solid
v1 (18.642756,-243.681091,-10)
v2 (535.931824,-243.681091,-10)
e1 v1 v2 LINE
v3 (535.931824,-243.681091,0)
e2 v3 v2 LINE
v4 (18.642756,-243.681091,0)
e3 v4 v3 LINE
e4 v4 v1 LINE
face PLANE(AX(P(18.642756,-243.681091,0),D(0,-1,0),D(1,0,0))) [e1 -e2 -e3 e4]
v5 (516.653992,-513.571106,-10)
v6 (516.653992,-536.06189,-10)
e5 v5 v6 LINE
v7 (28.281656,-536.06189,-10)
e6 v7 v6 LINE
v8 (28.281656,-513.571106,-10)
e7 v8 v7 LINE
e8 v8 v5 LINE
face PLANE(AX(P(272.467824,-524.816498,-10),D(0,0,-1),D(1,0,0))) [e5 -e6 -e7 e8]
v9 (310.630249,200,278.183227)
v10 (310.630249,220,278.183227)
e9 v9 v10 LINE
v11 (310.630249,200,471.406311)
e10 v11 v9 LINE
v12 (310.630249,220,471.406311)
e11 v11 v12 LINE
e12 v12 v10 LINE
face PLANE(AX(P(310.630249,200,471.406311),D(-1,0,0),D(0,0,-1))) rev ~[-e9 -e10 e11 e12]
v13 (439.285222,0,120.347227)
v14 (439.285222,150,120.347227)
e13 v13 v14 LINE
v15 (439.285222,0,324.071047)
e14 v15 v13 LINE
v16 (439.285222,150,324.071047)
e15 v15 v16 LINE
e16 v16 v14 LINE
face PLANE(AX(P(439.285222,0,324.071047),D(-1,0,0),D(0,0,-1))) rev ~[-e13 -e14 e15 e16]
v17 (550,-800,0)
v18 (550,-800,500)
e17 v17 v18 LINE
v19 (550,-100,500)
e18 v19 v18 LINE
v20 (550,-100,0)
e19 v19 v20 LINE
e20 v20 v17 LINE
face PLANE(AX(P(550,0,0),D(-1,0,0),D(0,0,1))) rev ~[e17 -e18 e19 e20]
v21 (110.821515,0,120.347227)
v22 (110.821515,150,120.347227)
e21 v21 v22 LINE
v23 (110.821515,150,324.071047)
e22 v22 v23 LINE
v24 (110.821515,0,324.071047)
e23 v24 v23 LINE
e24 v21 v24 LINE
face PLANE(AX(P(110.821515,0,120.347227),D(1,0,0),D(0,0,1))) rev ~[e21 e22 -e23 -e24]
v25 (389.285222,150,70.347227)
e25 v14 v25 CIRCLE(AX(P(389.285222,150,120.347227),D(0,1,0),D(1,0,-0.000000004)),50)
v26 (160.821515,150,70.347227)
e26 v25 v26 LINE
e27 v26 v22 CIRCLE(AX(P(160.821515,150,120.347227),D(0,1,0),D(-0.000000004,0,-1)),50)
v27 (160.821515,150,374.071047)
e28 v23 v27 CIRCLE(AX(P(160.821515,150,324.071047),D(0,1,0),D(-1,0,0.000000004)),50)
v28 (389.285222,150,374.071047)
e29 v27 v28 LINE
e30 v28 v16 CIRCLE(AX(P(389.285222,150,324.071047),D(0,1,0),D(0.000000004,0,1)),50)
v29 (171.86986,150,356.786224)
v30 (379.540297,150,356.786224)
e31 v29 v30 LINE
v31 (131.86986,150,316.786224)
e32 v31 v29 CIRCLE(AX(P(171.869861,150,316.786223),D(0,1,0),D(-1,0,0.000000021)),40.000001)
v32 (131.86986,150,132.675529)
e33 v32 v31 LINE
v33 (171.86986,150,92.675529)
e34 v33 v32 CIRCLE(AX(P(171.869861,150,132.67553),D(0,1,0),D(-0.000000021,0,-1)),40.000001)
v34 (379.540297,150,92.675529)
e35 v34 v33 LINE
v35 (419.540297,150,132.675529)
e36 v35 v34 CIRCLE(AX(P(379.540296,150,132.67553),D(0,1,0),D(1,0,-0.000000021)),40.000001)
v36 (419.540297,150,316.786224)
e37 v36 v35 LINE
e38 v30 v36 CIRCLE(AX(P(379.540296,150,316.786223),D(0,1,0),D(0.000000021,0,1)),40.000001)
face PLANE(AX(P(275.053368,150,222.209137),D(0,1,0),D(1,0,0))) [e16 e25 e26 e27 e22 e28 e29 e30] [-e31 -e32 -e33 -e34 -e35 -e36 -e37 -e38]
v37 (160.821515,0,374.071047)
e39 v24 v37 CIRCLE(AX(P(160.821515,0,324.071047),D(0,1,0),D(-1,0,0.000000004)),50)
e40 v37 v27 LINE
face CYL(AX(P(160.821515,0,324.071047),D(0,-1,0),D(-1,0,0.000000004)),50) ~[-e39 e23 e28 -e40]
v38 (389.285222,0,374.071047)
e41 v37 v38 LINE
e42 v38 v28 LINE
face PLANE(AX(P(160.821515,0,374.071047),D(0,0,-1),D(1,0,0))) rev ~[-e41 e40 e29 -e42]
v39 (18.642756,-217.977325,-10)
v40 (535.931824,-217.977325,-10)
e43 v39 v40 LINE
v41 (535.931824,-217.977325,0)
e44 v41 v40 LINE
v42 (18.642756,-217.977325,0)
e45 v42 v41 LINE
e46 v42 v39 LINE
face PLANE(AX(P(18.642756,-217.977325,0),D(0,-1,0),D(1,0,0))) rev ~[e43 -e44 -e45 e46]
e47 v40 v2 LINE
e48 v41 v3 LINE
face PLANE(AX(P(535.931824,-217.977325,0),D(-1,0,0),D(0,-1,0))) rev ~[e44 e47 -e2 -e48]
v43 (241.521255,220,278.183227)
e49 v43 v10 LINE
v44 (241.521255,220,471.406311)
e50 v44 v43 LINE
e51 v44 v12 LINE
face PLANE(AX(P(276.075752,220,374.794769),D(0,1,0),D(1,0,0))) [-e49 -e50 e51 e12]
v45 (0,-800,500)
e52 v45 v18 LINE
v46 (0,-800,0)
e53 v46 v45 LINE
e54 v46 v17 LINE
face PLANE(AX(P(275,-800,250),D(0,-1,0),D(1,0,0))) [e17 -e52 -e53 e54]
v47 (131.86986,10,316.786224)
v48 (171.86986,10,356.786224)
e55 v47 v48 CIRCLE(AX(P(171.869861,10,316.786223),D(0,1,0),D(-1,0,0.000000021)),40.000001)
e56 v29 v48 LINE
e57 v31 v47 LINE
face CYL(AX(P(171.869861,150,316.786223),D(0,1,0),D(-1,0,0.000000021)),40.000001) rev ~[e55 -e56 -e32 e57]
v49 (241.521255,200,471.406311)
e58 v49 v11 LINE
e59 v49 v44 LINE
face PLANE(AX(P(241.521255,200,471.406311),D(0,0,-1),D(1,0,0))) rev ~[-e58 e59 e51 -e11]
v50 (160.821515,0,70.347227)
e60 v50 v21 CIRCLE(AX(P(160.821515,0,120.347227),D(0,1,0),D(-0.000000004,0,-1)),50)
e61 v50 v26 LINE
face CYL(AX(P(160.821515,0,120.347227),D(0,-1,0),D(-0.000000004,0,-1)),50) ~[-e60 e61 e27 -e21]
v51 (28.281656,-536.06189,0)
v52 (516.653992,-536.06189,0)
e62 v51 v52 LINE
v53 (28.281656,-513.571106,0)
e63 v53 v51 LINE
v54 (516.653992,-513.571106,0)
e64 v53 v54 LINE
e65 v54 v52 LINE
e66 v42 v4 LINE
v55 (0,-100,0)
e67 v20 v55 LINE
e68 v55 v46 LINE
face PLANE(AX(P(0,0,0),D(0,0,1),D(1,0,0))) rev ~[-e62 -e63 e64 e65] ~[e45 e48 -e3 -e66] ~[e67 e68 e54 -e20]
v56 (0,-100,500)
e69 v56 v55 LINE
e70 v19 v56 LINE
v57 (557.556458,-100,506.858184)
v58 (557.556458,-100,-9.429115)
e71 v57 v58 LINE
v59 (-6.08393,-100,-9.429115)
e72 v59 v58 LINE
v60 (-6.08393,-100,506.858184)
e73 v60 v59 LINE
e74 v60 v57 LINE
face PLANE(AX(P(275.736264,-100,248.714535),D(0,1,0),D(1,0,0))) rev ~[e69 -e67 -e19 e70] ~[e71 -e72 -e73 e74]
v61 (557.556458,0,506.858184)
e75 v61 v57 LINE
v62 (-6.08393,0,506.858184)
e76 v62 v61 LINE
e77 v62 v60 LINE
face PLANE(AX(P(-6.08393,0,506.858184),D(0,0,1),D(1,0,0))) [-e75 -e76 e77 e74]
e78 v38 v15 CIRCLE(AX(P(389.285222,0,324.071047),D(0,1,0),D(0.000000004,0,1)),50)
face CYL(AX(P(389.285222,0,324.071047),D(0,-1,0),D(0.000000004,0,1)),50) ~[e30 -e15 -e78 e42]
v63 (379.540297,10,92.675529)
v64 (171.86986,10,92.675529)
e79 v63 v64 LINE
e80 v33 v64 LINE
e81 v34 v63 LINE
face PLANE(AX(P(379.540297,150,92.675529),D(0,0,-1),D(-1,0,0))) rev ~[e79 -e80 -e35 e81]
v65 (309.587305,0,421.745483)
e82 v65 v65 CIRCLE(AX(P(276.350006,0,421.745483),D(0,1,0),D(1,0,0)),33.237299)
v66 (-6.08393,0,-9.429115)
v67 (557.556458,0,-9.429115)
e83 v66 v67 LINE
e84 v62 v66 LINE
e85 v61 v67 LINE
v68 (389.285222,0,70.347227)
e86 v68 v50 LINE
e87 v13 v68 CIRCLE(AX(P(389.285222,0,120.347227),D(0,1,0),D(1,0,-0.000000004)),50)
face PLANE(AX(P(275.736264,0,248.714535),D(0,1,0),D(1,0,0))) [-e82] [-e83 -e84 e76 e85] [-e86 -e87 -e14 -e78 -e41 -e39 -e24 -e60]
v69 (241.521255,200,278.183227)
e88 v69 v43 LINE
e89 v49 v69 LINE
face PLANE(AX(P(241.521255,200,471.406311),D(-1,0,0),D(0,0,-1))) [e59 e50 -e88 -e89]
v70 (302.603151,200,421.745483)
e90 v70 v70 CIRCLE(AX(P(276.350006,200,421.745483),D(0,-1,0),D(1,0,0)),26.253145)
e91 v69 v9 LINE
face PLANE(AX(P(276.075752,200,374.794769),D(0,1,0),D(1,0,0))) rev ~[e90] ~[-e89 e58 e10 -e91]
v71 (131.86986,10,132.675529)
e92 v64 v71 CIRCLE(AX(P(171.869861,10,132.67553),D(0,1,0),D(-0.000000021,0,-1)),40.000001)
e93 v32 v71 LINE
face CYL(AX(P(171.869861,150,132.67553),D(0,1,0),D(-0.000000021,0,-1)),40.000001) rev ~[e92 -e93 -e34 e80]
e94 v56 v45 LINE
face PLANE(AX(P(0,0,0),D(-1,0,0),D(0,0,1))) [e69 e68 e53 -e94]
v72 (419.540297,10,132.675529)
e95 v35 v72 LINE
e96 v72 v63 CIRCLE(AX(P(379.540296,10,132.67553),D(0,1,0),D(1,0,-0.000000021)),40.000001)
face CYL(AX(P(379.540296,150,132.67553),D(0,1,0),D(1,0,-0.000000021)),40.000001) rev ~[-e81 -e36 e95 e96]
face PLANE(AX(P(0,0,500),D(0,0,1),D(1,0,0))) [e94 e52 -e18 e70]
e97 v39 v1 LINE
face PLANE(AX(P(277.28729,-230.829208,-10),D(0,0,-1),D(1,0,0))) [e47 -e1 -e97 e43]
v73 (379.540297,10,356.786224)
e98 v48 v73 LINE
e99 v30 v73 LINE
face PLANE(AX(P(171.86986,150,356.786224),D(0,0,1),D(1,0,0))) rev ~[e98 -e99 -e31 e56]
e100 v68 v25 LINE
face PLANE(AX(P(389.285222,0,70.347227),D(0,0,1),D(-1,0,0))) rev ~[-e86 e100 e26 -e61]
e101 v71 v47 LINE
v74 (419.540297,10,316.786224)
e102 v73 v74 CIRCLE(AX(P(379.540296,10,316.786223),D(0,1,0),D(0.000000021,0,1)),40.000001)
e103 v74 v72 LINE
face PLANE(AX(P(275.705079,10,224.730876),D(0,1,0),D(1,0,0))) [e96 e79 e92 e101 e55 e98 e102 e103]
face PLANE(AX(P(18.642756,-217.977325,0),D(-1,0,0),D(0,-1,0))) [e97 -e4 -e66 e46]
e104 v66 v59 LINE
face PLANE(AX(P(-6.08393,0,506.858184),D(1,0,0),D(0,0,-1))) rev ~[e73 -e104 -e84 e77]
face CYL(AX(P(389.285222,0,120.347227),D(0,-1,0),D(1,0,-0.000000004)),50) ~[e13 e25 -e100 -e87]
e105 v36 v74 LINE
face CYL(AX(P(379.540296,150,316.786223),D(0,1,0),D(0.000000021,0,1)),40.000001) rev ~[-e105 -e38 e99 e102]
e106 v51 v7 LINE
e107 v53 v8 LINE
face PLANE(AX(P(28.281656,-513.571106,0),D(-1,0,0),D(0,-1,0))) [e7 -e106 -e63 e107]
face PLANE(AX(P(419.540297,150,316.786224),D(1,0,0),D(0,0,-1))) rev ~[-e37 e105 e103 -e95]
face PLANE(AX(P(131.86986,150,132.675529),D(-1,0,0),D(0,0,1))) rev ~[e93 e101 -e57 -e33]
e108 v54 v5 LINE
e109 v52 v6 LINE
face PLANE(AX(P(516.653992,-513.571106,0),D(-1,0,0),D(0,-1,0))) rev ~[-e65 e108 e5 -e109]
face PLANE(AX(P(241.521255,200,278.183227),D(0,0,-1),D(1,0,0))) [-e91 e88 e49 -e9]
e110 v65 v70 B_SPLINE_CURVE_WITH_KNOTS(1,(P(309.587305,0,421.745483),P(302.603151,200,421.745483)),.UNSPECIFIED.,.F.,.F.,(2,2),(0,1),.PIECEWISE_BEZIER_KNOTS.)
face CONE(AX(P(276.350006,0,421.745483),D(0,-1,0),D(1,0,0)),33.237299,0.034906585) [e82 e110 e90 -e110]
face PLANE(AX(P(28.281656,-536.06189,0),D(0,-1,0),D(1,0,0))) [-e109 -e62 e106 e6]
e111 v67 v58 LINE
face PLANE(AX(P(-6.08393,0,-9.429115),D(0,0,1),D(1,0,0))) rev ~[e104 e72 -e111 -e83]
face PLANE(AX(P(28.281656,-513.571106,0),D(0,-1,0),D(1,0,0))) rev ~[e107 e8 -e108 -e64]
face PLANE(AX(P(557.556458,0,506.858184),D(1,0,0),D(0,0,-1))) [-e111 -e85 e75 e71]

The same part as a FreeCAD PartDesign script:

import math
import FreeCAD as App
import Part
import Sketcher

doc = App.newDocument("Part")
body = doc.addObject("PartDesign::Body", "Body")

# Sketch on XZ plane
sketch1 = body.newObject("Sketcher::SketchObject", "Sketch")
sketch1.AttachmentSupport = (doc.getObject("XZ_Plane"), [""])
sketch1.MapMode = "FlatFace"
sketch1.addGeometry([
    Part.LineSegment(App.Vector(0, 500, 0), App.Vector(0, 0, 0)),
    Part.LineSegment(App.Vector(0, 0, 0), App.Vector(550, 0, 0)),
    Part.LineSegment(App.Vector(550, 0, 0), App.Vector(550, 500, 0)),
    Part.LineSegment(App.Vector(550, 500, 0), App.Vector(0, 500, 0)),
], False)
sketch1.addConstraint([
    Sketcher.Constraint("Coincident", 0, 2, 1, 1),
    Sketcher.Constraint("Coincident", 1, 2, 2, 1),
    Sketcher.Constraint("Coincident", 2, 2, 3, 1),
    Sketcher.Constraint("Coincident", 3, 2, 0, 1),
    Sketcher.Constraint("Vertical", 0),
    Sketcher.Constraint("Horizontal", 1),
    Sketcher.Constraint("Vertical", 2),
    Sketcher.Constraint("Horizontal", 3),
    Sketcher.Constraint("Coincident", 0, 2, -1, 1),
    Sketcher.Constraint("DistanceX", 1, 1, 1, 2, 550.0),
    Sketcher.Constraint("DistanceY", 0, 2, 0, 1, 500.0),
])
pad1 = body.newObject("PartDesign::Pad", "Pad")
pad1.Profile = sketch1
pad1.Length = 800

# Sketch on XZ plane
sketch2 = body.newObject("Sketcher::SketchObject", "Sketch001")
sketch2.AttachmentSupport = (doc.getObject("XZ_Plane"), [""])
sketch2.MapMode = "FlatFace"
sketch2.addGeometry([
    Part.LineSegment(App.Vector(111, 120, 0), App.Vector(111, 324, 0)),  # 0
    Part.ArcOfCircle(Part.Circle(App.Vector(161, 324, 0), App.Vector(0, 0, 1), 50), math.radians(90), math.radians(180)),  # 1
    Part.LineSegment(App.Vector(161, 374, 0), App.Vector(389, 374, 0)),  # 2
    Part.ArcOfCircle(Part.Circle(App.Vector(389, 324, 0), App.Vector(0, 0, 1), 50), math.radians(0), math.radians(90)),  # 3
    Part.LineSegment(App.Vector(439, 324, 0), App.Vector(439, 120, 0)),  # 4
    Part.ArcOfCircle(Part.Circle(App.Vector(389, 120, 0), App.Vector(0, 0, 1), 50), math.radians(-90), math.radians(0)),  # 5
    Part.LineSegment(App.Vector(389, 70, 0), App.Vector(161, 70, 0)),  # 6
    Part.ArcOfCircle(Part.Circle(App.Vector(161, 120, 0), App.Vector(0, 0, 1), 50), math.radians(-180), math.radians(-90)),  # 7
], False)
sketch2.addConstraint([
    Sketcher.Constraint("Tangent", 0, 2, 1, 2),
    Sketcher.Constraint("Tangent", 1, 1, 2, 1),
    Sketcher.Constraint("Tangent", 2, 2, 3, 2),
    Sketcher.Constraint("Tangent", 3, 1, 4, 1),
    Sketcher.Constraint("Tangent", 4, 2, 5, 2),
    Sketcher.Constraint("Tangent", 5, 1, 6, 1),
    Sketcher.Constraint("Tangent", 6, 2, 7, 2),
    Sketcher.Constraint("Tangent", 7, 1, 0, 1),
    Sketcher.Constraint("Vertical", 0),
    Sketcher.Constraint("Horizontal", 2),
    Sketcher.Constraint("Vertical", 4),
    Sketcher.Constraint("Horizontal", 6),
    Sketcher.Constraint("Equal", 1, 3),
    Sketcher.Constraint("Equal", 3, 5),
    Sketcher.Constraint("Equal", 5, 7),
    Sketcher.Constraint("Radius", 1, 50.0),
    Sketcher.Constraint("DistanceY", 0, 1, 0, 2, 203.72382),
    Sketcher.Constraint("DistanceX", 2, 1, 2, 2, 228.463707),
    Sketcher.Constraint("DistanceX", -1, 1, 3, 3, 389.285222),
    Sketcher.Constraint("DistanceY", -1, 1, 1, 3, 324.071047),
])
pad2 = body.newObject("PartDesign::Pad", "Pad001")
pad2.Profile = sketch2
pad2.Length = 150
pad2.Reversed = True

# Sketch on XZ plane
sketch3 = body.newObject("Sketcher::SketchObject", "Sketch002")
sketch3.AttachmentSupport = (doc.getObject("XZ_Plane"), [""])
sketch3.MapMode = "FlatFace"
sketch3.AttachmentOffset = App.Placement(App.Vector(0, 0, -150), App.Rotation())
sketch3.addGeometry([
    Part.LineSegment(App.Vector(132, 133, 0), App.Vector(132, 317, 0)),  # 0
    Part.ArcOfCircle(Part.Circle(App.Vector(172, 317, 0), App.Vector(0, 0, 1), 40), math.radians(90), math.radians(180)),  # 1
    Part.LineSegment(App.Vector(172, 357, 0), App.Vector(380, 357, 0)),  # 2
    Part.ArcOfCircle(Part.Circle(App.Vector(380, 317, 0), App.Vector(0, 0, 1), 40), math.radians(0), math.radians(90)),  # 3
    Part.LineSegment(App.Vector(420, 317, 0), App.Vector(420, 133, 0)),  # 4
    Part.ArcOfCircle(Part.Circle(App.Vector(380, 133, 0), App.Vector(0, 0, 1), 40), math.radians(-90), math.radians(0)),  # 5
    Part.LineSegment(App.Vector(380, 93, 0), App.Vector(172, 93, 0)),  # 6
    Part.ArcOfCircle(Part.Circle(App.Vector(172, 133, 0), App.Vector(0, 0, 1), 40), math.radians(-180), math.radians(-90)),  # 7
], False)
sketch3.addConstraint([
    Sketcher.Constraint("Tangent", 0, 2, 1, 2),
    Sketcher.Constraint("Tangent", 1, 1, 2, 1),
    Sketcher.Constraint("Tangent", 2, 2, 3, 2),
    Sketcher.Constraint("Tangent", 3, 1, 4, 1),
    Sketcher.Constraint("Tangent", 4, 2, 5, 2),
    Sketcher.Constraint("Tangent", 5, 1, 6, 1),
    Sketcher.Constraint("Tangent", 6, 2, 7, 2),
    Sketcher.Constraint("Tangent", 7, 1, 0, 1),
    Sketcher.Constraint("Vertical", 0),
    Sketcher.Constraint("Horizontal", 2),
    Sketcher.Constraint("Vertical", 4),
    Sketcher.Constraint("Horizontal", 6),
    Sketcher.Constraint("Equal", 1, 3),
    Sketcher.Constraint("Equal", 3, 5),
    Sketcher.Constraint("Equal", 5, 7),
    Sketcher.Constraint("Radius", 1, 40.000001),
    Sketcher.Constraint("DistanceX", 2, 1, 2, 2, 207.670437),
    Sketcher.Constraint("DistanceY", 0, 1, 0, 2, 184.110695),
    Sketcher.Constraint("DistanceX", -1, 1, 1, 3, 171.869861),
    Sketcher.Constraint("DistanceY", -1, 1, 5, 3, 132.67553),
])
pocket1 = body.newObject("PartDesign::Pocket", "Pocket")
pocket1.Profile = sketch3
pocket1.Length = 140
pocket1.Reversed = True

# Sketch on XZ plane
sketch4 = body.newObject("Sketcher::SketchObject", "Sketch003")
sketch4.AttachmentSupport = (doc.getObject("XZ_Plane"), [""])
sketch4.MapMode = "FlatFace"
sketch4.addGeometry(Part.Circle(App.Vector(276, 422, 0), App.Vector(0, 0, 1), 33), False)
sketch4.addConstraint([
    Sketcher.Constraint("Diameter", 0, 66.474598),
    Sketcher.Constraint("DistanceX", -1, 1, 0, 3, 276.350006),
    Sketcher.Constraint("DistanceY", -1, 1, 0, 3, 421.745483),
])
pad3 = body.newObject("PartDesign::Pad", "Pad002")
pad3.Profile = sketch4
pad3.Length = 200
pad3.Reversed = True
pad3.TaperAngle = -2

# Sketch on XZ plane
sketch5 = body.newObject("Sketcher::SketchObject", "Sketch004")
sketch5.AttachmentSupport = (doc.getObject("XZ_Plane"), [""])
sketch5.MapMode = "FlatFace"
sketch5.AttachmentOffset = App.Placement(App.Vector(0, 0, -200), App.Rotation())
sketch5.addGeometry([
    Part.LineSegment(App.Vector(242, 278, 0), App.Vector(242, 471, 0)),
    Part.LineSegment(App.Vector(242, 471, 0), App.Vector(311, 471, 0)),
    Part.LineSegment(App.Vector(311, 471, 0), App.Vector(311, 278, 0)),
    Part.LineSegment(App.Vector(311, 278, 0), App.Vector(242, 278, 0)),
], False)
sketch5.addConstraint([
    Sketcher.Constraint("Coincident", 0, 2, 1, 1),
    Sketcher.Constraint("Coincident", 1, 2, 2, 1),
    Sketcher.Constraint("Coincident", 2, 2, 3, 1),
    Sketcher.Constraint("Coincident", 3, 2, 0, 1),
    Sketcher.Constraint("Vertical", 0),
    Sketcher.Constraint("Horizontal", 1),
    Sketcher.Constraint("Vertical", 2),
    Sketcher.Constraint("Horizontal", 3),
    Sketcher.Constraint("DistanceX", 1, 1, 1, 2, 69.108994),
    Sketcher.Constraint("DistanceY", 0, 1, 0, 2, 193.223083),
    Sketcher.Constraint("DistanceY", -1, 1, 0, 2, 471.406311),
    Sketcher.Constraint("DistanceX", -1, 1, 1, 2, 310.630249),
])
pad4 = body.newObject("PartDesign::Pad", "Pad003")
pad4.Profile = sketch5
pad4.Length = 20
pad4.Reversed = True

# Sketch on XY plane
sketch6 = body.newObject("Sketcher::SketchObject", "Sketch005")
sketch6.AttachmentSupport = (doc.getObject("XY_Plane"), [""])
sketch6.MapMode = "FlatFace"
sketch6.addGeometry([
    Part.LineSegment(App.Vector(19, -244, 0), App.Vector(19, -218, 0)),  # 0
    Part.LineSegment(App.Vector(19, -218, 0), App.Vector(536, -218, 0)),  # 1
    Part.LineSegment(App.Vector(536, -218, 0), App.Vector(536, -244, 0)),  # 2
    Part.LineSegment(App.Vector(536, -244, 0), App.Vector(19, -244, 0)),  # 3
    Part.LineSegment(App.Vector(28, -536, 0), App.Vector(28, -514, 0)),  # 4
    Part.LineSegment(App.Vector(28, -514, 0), App.Vector(517, -514, 0)),  # 5
    Part.LineSegment(App.Vector(517, -514, 0), App.Vector(517, -536, 0)),  # 6
    Part.LineSegment(App.Vector(517, -536, 0), App.Vector(28, -536, 0)),  # 7
], False)
sketch6.addConstraint([
    Sketcher.Constraint("Coincident", 0, 2, 1, 1),
    Sketcher.Constraint("Coincident", 1, 2, 2, 1),
    Sketcher.Constraint("Coincident", 2, 2, 3, 1),
    Sketcher.Constraint("Coincident", 3, 2, 0, 1),
    Sketcher.Constraint("Coincident", 4, 2, 5, 1),
    Sketcher.Constraint("Coincident", 5, 2, 6, 1),
    Sketcher.Constraint("Coincident", 6, 2, 7, 1),
    Sketcher.Constraint("Coincident", 7, 2, 4, 1),
    Sketcher.Constraint("Vertical", 0),
    Sketcher.Constraint("Horizontal", 1),
    Sketcher.Constraint("Vertical", 2),
    Sketcher.Constraint("Horizontal", 3),
    Sketcher.Constraint("Vertical", 4),
    Sketcher.Constraint("Horizontal", 5),
    Sketcher.Constraint("Vertical", 6),
    Sketcher.Constraint("Horizontal", 7),
    Sketcher.Constraint("DistanceX", 1, 1, 1, 2, 517.289068),
    Sketcher.Constraint("DistanceX", 3, 2, 4, 2, 9.6389),
    Sketcher.Constraint("DistanceY", 6, 2, 2, 2, 292.380799),
    Sketcher.Constraint("DistanceX", 5, 1, 5, 2, 488.372336),
    Sketcher.Constraint("DistanceY", 0, 1, 0, 2, 25.703766),
    Sketcher.Constraint("DistanceY", 4, 1, 4, 2, 22.490784),
    Sketcher.Constraint("DistanceY", 2, 2, -1, 1, 243.681091),
    Sketcher.Constraint("DistanceX", -1, 1, 5, 2, 516.653992),
])
pad5 = body.newObject("PartDesign::Pad", "Pad004")
pad5.Profile = sketch6
pad5.Length = 10
pad5.Reversed = True

# Sketch on XZ plane
sketch7 = body.newObject("Sketcher::SketchObject", "Sketch006")
sketch7.AttachmentSupport = (doc.getObject("XZ_Plane"), [""])
sketch7.MapMode = "FlatFace"
sketch7.addGeometry([
    Part.LineSegment(App.Vector(-6, -9, 0), App.Vector(-6, 507, 0)),
    Part.LineSegment(App.Vector(-6, 507, 0), App.Vector(558, 507, 0)),
    Part.LineSegment(App.Vector(558, 507, 0), App.Vector(558, -9, 0)),
    Part.LineSegment(App.Vector(558, -9, 0), App.Vector(-6, -9, 0)),
], False)
sketch7.addConstraint([
    Sketcher.Constraint("Coincident", 0, 2, 1, 1),
    Sketcher.Constraint("Coincident", 1, 2, 2, 1),
    Sketcher.Constraint("Coincident", 2, 2, 3, 1),
    Sketcher.Constraint("Coincident", 3, 2, 0, 1),
    Sketcher.Constraint("Vertical", 0),
    Sketcher.Constraint("Horizontal", 1),
    Sketcher.Constraint("Vertical", 2),
    Sketcher.Constraint("Horizontal", 3),
    Sketcher.Constraint("DistanceY", 0, 1, 0, 2, 516.287299),
    Sketcher.Constraint("DistanceX", 1, 1, 1, 2, 563.640388),
    Sketcher.Constraint("DistanceX", 0, 2, -1, 1, 6.08393),
    Sketcher.Constraint("DistanceY", -1, 1, 0, 2, 506.858184),
])
pad6 = body.newObject("PartDesign::Pad", "Pad005")
pad6.Profile = sketch7
pad6.Length = 100

doc.recompute()
